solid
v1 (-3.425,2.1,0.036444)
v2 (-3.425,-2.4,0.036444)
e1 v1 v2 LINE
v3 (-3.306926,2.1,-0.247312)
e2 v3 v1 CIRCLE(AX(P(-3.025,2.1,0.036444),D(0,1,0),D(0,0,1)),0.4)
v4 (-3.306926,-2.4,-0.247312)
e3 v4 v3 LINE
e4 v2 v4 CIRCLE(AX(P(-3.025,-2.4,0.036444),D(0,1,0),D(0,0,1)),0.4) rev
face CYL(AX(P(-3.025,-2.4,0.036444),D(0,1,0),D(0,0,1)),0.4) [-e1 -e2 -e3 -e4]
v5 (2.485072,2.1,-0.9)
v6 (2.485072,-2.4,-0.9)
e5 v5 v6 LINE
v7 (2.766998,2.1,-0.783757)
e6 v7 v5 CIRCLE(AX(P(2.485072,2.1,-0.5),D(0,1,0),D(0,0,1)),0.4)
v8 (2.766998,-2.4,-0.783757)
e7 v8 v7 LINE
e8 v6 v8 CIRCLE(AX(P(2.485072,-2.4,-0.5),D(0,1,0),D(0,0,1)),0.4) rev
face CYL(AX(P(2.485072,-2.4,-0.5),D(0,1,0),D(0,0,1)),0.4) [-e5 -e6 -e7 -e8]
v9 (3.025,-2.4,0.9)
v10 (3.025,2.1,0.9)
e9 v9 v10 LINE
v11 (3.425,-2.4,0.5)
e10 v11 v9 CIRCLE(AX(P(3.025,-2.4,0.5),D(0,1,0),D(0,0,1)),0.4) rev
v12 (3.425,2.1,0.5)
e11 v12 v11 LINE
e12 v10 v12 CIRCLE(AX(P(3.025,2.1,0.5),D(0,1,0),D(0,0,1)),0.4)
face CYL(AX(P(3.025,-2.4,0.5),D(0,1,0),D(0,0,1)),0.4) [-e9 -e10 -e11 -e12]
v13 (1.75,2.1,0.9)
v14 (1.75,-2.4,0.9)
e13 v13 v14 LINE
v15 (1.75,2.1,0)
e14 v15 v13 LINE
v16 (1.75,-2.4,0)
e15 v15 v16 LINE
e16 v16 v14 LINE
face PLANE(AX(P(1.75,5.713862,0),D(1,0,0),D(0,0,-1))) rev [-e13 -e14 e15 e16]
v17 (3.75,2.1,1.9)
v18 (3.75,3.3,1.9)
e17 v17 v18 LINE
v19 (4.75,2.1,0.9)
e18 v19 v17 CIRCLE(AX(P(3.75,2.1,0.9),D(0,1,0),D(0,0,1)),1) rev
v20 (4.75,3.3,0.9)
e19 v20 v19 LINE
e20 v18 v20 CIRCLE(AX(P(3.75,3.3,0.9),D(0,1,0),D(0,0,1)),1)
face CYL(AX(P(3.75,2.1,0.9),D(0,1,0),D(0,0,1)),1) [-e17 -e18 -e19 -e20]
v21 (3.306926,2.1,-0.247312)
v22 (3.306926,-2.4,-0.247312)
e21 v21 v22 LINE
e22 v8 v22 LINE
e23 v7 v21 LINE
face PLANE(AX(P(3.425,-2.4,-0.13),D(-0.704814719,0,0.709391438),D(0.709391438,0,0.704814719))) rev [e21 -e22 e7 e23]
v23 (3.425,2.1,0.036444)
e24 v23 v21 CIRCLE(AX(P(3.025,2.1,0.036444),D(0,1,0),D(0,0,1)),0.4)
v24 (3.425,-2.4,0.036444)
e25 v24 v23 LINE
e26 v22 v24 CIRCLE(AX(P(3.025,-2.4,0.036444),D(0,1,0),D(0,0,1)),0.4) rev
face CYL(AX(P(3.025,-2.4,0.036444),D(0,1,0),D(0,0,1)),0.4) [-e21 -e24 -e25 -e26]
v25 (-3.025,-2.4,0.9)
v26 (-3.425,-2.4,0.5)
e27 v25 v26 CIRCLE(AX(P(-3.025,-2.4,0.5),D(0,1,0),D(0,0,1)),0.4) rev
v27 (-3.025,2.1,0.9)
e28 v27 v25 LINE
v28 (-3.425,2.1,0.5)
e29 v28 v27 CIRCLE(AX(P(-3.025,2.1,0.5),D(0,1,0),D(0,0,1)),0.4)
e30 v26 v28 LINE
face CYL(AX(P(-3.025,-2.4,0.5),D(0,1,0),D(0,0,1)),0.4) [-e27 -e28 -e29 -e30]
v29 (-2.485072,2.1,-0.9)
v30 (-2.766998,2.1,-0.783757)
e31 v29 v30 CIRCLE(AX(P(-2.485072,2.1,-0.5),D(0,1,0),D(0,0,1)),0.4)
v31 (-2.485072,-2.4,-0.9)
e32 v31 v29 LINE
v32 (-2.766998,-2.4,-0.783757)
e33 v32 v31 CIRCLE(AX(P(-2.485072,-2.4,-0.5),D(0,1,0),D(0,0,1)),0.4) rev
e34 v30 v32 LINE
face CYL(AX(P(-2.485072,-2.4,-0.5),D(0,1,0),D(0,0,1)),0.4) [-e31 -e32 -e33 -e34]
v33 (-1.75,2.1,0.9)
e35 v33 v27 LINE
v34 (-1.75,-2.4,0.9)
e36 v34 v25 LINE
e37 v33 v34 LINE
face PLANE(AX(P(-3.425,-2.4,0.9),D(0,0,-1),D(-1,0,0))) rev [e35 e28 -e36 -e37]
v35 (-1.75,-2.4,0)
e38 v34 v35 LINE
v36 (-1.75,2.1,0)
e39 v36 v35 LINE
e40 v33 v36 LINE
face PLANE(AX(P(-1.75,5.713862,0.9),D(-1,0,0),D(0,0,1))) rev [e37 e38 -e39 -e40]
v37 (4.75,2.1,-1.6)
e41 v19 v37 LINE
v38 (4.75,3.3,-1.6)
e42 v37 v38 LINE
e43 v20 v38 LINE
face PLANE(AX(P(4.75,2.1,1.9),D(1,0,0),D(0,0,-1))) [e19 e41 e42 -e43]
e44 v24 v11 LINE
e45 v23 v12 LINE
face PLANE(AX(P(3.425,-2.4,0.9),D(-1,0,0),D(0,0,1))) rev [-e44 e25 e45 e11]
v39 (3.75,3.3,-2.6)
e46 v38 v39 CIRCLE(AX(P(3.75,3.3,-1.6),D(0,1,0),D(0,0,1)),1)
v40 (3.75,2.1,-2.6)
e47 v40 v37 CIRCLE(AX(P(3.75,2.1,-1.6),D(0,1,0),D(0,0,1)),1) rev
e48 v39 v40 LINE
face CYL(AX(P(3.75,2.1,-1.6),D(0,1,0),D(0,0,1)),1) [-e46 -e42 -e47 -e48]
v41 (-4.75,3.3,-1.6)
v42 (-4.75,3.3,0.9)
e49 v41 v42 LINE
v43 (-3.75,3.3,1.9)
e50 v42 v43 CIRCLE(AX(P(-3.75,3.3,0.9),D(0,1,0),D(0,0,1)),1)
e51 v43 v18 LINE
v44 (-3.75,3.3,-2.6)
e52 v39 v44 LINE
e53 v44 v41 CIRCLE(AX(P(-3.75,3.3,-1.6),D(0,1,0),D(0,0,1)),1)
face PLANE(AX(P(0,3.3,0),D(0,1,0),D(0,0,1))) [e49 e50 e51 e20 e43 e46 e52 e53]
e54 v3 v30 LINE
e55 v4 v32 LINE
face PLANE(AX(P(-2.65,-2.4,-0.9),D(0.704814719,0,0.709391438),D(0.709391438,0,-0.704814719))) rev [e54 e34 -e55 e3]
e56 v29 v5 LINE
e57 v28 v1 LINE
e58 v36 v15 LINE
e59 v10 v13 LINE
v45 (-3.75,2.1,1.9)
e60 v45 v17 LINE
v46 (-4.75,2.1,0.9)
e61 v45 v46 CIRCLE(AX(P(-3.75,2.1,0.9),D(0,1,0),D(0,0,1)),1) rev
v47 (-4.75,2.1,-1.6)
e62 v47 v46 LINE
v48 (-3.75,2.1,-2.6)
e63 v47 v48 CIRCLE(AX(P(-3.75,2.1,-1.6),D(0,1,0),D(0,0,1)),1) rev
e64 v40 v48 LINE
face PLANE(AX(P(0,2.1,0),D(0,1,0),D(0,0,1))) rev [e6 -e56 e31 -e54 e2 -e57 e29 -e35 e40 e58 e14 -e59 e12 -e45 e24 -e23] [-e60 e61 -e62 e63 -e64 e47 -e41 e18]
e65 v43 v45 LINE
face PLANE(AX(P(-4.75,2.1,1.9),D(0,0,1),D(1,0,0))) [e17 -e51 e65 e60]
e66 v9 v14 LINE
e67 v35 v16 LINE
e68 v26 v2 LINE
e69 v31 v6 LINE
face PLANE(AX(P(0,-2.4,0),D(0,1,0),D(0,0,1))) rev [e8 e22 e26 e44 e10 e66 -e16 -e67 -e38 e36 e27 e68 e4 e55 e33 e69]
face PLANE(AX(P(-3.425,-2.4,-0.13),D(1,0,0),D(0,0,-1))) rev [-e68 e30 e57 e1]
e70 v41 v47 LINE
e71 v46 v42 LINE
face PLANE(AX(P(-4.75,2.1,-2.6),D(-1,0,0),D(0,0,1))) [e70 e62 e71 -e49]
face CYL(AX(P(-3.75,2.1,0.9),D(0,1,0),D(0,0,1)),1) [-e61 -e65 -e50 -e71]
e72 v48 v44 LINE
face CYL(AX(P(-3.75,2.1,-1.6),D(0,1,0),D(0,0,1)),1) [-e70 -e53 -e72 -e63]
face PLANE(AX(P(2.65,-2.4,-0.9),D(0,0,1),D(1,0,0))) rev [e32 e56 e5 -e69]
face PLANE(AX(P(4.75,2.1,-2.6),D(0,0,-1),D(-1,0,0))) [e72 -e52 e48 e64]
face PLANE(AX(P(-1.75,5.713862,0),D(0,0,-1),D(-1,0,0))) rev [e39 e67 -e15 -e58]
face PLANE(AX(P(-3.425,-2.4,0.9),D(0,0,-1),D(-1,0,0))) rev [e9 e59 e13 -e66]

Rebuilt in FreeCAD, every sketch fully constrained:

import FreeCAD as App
import Part
import Sketcher
from FreeCAD import Vector


def edges_at(feature, points):
    """Names of the edges that pass closest to the given points."""
    edges = feature.Shape.Edges
    near = lambda p: min(range(len(edges)), key=lambda i: edges[i].distToShape(Part.Vertex(*p))[0])
    return sorted({f"Edge{near(p) + 1}" for p in points})

doc = App.newDocument("Part")
body = doc.addObject("PartDesign::Body", "Body")

# Sketch on XZ plane
sketch1 = body.newObject("Sketcher::SketchObject", "Sketch")
sketch1.AttachmentSupport = (doc.getObject("XZ_Plane"), [""])
sketch1.MapMode = "FlatFace"
sketch1.AttachmentOffset = App.Placement(Vector(0, 0, -3.3), App.Rotation())
sketch1.addGeometry([
    Part.LineSegment(Vector(-4.8, -2.6, 0), Vector(-4.8, 1.9, 0)),
    Part.LineSegment(Vector(-4.8, 1.9, 0), Vector(4.8, 1.9, 0)),
    Part.LineSegment(Vector(4.8, 1.9, 0), Vector(4.8, -2.6, 0)),
    Part.LineSegment(Vector(4.8, -2.6, 0), Vector(-4.8, -2.6, 0)),
], False)
sketch1.addConstraint([
    Sketcher.Constraint("Coincident", 0, 2, 1, 1),
    Sketcher.Constraint("Coincident", 1, 2, 2, 1),
    Sketcher.Constraint("Coincident", 2, 2, 3, 1),
    Sketcher.Constraint("Coincident", 3, 2, 0, 1),
    Sketcher.Constraint("Vertical", 0),
    Sketcher.Constraint("Horizontal", 1),
    Sketcher.Constraint("Vertical", 2),
    Sketcher.Constraint("Horizontal", 3),
    Sketcher.Constraint("DistanceX", 1, 1, 1, 2, 9.5),
    Sketcher.Constraint("DistanceY", 0, 1, 0, 2, 4.5),
    Sketcher.Constraint("DistanceY", -1, 1, 0, 2, 1.9),
    Sketcher.Constraint("DistanceX", 0, 2, -1, 1, 4.75),
])
pad1 = body.newObject("PartDesign::Pad", "Pad")
pad1.Profile = sketch1
pad1.Length = 1.2

# Sketch on XZ plane
sketch2 = body.newObject("Sketcher::SketchObject", "Sketch001")
sketch2.AttachmentSupport = (doc.getObject("XZ_Plane"), [""])
sketch2.MapMode = "FlatFace"
sketch2.AttachmentOffset = App.Placement(Vector(0, 0, -2.1), App.Rotation())
sketch2.addGeometry([
    Part.LineSegment(Vector(2.6, -0.9, 0), Vector(3.4, -0.1, 0)),  # 0
    Part.LineSegment(Vector(3.4, -0.1, 0), Vector(3.4, 0.9, 0)),  # 1
    Part.LineSegment(Vector(3.4, 0.9, 0), Vector(-3.4, 0.9, 0)),  # 2
    Part.LineSegment(Vector(-3.4, 0.9, 0), Vector(-3.4, -0.1, 0)),  # 3
    Part.LineSegment(Vector(-3.4, -0.1, 0), Vector(-2.6, -0.9, 0)),  # 4
    Part.LineSegment(Vector(-2.6, -0.9, 0), Vector(2.6, -0.9, 0)),  # 5
], False)
sketch2.addConstraint([
    Sketcher.Constraint("Coincident", 0, 2, 1, 1),
    Sketcher.Constraint("Coincident", 1, 2, 2, 1),
    Sketcher.Constraint("Coincident", 2, 2, 3, 1),
    Sketcher.Constraint("Coincident", 3, 2, 4, 1),
    Sketcher.Constraint("Coincident", 4, 2, 5, 1),
    Sketcher.Constraint("Coincident", 5, 2, 0, 1),
    Sketcher.Constraint("Vertical", 1),
    Sketcher.Constraint("Horizontal", 2),
    Sketcher.Constraint("Vertical", 3),
    Sketcher.Constraint("Horizontal", 5),
    Sketcher.Constraint("Symmetric", 0, 2, 3, 2, -2),
    Sketcher.Constraint("Equal", 0, 4),
    Sketcher.Constraint("DistanceX", 5, 1, 5, 2, 5.3),
    Sketcher.Constraint("DistanceX", 2, 2, 2, 1, 6.85),
    Sketcher.Constraint("DistanceY", 1, 1, 1, 2, 1.03),
    Sketcher.Constraint("DistanceY", -1, 1, 1, 2, 0.9),
    Sketcher.Constraint("DistanceY", 4, 2, -1, 1, 0.9),
])
pad2 = body.newObject("PartDesign::Pad", "Pad001")
pad2.Profile = sketch2
pad2.Length = 4.5

# Sketch on XZ plane
sketch3 = body.newObject("Sketcher::SketchObject", "Sketch002")
sketch3.AttachmentSupport = (doc.getObject("XZ_Plane"), [""])
sketch3.MapMode = "FlatFace"
sketch3.AttachmentOffset = App.Placement(Vector(0, 0, 2.4), App.Rotation())
sketch3.addGeometry([
    Part.LineSegment(Vector(-1.8, 0.9, 0), Vector(-1.8, 0, 0)),
    Part.LineSegment(Vector(-1.8, 0, 0), Vector(1.8, 0, 0)),
    Part.LineSegment(Vector(1.8, 0, 0), Vector(1.8, 0.9, 0)),
    Part.LineSegment(Vector(1.8, 0.9, 0), Vector(-1.8, 0.9, 0)),
], False)
sketch3.addConstraint([
    Sketcher.Constraint("Coincident", 0, 2, 1, 1),
    Sketcher.Constraint("Coincident", 1, 2, 2, 1),
    Sketcher.Constraint("Coincident", 2, 2, 3, 1),
    Sketcher.Constraint("Coincident", 3, 2, 0, 1),
    Sketcher.Constraint("Vertical", 0),
    Sketcher.Constraint("Horizontal", 1),
    Sketcher.Constraint("Vertical", 2),
    Sketcher.Constraint("Horizontal", 3),
    Sketcher.Constraint("Symmetric", 0, 2, 1, 2, -1, 1),
    Sketcher.Constraint("DistanceX", 1, 1, 1, 2, 3.5),
    Sketcher.Constraint("DistanceY", 0, 2, 0, 1, 0.9),
])
pocket1 = body.newObject("PartDesign::Pocket", "Pocket")
pocket1.Profile = sketch3
pocket1.Length = 4.5
doc.recompute()

fillet = body.newObject("PartDesign::Fillet", "Fillet")
fillet.Base = (pocket1, edges_at(pocket1, [
    (3.425, -0.15, -0.13),
    (3.425, -0.15, 0.9),
    (-3.425, -0.15, 0.9),
    (-3.425, -0.15, -0.13),
    (-2.65, -0.15, -0.9),
    (2.65, -0.15, -0.9),
]))
fillet.Radius = 0.4
doc.recompute()

fillet2 = body.newObject("PartDesign::Fillet", "Fillet001")
fillet2.Base = (fillet, edges_at(fillet, [
    (-4.75, 2.7, 1.9),
    (-4.75, 2.7, -2.6),
    (4.75, 2.7, -2.6),
    (4.75, 2.7, 1.9),
]))
fillet2.Radius = 1

doc.recompute()
